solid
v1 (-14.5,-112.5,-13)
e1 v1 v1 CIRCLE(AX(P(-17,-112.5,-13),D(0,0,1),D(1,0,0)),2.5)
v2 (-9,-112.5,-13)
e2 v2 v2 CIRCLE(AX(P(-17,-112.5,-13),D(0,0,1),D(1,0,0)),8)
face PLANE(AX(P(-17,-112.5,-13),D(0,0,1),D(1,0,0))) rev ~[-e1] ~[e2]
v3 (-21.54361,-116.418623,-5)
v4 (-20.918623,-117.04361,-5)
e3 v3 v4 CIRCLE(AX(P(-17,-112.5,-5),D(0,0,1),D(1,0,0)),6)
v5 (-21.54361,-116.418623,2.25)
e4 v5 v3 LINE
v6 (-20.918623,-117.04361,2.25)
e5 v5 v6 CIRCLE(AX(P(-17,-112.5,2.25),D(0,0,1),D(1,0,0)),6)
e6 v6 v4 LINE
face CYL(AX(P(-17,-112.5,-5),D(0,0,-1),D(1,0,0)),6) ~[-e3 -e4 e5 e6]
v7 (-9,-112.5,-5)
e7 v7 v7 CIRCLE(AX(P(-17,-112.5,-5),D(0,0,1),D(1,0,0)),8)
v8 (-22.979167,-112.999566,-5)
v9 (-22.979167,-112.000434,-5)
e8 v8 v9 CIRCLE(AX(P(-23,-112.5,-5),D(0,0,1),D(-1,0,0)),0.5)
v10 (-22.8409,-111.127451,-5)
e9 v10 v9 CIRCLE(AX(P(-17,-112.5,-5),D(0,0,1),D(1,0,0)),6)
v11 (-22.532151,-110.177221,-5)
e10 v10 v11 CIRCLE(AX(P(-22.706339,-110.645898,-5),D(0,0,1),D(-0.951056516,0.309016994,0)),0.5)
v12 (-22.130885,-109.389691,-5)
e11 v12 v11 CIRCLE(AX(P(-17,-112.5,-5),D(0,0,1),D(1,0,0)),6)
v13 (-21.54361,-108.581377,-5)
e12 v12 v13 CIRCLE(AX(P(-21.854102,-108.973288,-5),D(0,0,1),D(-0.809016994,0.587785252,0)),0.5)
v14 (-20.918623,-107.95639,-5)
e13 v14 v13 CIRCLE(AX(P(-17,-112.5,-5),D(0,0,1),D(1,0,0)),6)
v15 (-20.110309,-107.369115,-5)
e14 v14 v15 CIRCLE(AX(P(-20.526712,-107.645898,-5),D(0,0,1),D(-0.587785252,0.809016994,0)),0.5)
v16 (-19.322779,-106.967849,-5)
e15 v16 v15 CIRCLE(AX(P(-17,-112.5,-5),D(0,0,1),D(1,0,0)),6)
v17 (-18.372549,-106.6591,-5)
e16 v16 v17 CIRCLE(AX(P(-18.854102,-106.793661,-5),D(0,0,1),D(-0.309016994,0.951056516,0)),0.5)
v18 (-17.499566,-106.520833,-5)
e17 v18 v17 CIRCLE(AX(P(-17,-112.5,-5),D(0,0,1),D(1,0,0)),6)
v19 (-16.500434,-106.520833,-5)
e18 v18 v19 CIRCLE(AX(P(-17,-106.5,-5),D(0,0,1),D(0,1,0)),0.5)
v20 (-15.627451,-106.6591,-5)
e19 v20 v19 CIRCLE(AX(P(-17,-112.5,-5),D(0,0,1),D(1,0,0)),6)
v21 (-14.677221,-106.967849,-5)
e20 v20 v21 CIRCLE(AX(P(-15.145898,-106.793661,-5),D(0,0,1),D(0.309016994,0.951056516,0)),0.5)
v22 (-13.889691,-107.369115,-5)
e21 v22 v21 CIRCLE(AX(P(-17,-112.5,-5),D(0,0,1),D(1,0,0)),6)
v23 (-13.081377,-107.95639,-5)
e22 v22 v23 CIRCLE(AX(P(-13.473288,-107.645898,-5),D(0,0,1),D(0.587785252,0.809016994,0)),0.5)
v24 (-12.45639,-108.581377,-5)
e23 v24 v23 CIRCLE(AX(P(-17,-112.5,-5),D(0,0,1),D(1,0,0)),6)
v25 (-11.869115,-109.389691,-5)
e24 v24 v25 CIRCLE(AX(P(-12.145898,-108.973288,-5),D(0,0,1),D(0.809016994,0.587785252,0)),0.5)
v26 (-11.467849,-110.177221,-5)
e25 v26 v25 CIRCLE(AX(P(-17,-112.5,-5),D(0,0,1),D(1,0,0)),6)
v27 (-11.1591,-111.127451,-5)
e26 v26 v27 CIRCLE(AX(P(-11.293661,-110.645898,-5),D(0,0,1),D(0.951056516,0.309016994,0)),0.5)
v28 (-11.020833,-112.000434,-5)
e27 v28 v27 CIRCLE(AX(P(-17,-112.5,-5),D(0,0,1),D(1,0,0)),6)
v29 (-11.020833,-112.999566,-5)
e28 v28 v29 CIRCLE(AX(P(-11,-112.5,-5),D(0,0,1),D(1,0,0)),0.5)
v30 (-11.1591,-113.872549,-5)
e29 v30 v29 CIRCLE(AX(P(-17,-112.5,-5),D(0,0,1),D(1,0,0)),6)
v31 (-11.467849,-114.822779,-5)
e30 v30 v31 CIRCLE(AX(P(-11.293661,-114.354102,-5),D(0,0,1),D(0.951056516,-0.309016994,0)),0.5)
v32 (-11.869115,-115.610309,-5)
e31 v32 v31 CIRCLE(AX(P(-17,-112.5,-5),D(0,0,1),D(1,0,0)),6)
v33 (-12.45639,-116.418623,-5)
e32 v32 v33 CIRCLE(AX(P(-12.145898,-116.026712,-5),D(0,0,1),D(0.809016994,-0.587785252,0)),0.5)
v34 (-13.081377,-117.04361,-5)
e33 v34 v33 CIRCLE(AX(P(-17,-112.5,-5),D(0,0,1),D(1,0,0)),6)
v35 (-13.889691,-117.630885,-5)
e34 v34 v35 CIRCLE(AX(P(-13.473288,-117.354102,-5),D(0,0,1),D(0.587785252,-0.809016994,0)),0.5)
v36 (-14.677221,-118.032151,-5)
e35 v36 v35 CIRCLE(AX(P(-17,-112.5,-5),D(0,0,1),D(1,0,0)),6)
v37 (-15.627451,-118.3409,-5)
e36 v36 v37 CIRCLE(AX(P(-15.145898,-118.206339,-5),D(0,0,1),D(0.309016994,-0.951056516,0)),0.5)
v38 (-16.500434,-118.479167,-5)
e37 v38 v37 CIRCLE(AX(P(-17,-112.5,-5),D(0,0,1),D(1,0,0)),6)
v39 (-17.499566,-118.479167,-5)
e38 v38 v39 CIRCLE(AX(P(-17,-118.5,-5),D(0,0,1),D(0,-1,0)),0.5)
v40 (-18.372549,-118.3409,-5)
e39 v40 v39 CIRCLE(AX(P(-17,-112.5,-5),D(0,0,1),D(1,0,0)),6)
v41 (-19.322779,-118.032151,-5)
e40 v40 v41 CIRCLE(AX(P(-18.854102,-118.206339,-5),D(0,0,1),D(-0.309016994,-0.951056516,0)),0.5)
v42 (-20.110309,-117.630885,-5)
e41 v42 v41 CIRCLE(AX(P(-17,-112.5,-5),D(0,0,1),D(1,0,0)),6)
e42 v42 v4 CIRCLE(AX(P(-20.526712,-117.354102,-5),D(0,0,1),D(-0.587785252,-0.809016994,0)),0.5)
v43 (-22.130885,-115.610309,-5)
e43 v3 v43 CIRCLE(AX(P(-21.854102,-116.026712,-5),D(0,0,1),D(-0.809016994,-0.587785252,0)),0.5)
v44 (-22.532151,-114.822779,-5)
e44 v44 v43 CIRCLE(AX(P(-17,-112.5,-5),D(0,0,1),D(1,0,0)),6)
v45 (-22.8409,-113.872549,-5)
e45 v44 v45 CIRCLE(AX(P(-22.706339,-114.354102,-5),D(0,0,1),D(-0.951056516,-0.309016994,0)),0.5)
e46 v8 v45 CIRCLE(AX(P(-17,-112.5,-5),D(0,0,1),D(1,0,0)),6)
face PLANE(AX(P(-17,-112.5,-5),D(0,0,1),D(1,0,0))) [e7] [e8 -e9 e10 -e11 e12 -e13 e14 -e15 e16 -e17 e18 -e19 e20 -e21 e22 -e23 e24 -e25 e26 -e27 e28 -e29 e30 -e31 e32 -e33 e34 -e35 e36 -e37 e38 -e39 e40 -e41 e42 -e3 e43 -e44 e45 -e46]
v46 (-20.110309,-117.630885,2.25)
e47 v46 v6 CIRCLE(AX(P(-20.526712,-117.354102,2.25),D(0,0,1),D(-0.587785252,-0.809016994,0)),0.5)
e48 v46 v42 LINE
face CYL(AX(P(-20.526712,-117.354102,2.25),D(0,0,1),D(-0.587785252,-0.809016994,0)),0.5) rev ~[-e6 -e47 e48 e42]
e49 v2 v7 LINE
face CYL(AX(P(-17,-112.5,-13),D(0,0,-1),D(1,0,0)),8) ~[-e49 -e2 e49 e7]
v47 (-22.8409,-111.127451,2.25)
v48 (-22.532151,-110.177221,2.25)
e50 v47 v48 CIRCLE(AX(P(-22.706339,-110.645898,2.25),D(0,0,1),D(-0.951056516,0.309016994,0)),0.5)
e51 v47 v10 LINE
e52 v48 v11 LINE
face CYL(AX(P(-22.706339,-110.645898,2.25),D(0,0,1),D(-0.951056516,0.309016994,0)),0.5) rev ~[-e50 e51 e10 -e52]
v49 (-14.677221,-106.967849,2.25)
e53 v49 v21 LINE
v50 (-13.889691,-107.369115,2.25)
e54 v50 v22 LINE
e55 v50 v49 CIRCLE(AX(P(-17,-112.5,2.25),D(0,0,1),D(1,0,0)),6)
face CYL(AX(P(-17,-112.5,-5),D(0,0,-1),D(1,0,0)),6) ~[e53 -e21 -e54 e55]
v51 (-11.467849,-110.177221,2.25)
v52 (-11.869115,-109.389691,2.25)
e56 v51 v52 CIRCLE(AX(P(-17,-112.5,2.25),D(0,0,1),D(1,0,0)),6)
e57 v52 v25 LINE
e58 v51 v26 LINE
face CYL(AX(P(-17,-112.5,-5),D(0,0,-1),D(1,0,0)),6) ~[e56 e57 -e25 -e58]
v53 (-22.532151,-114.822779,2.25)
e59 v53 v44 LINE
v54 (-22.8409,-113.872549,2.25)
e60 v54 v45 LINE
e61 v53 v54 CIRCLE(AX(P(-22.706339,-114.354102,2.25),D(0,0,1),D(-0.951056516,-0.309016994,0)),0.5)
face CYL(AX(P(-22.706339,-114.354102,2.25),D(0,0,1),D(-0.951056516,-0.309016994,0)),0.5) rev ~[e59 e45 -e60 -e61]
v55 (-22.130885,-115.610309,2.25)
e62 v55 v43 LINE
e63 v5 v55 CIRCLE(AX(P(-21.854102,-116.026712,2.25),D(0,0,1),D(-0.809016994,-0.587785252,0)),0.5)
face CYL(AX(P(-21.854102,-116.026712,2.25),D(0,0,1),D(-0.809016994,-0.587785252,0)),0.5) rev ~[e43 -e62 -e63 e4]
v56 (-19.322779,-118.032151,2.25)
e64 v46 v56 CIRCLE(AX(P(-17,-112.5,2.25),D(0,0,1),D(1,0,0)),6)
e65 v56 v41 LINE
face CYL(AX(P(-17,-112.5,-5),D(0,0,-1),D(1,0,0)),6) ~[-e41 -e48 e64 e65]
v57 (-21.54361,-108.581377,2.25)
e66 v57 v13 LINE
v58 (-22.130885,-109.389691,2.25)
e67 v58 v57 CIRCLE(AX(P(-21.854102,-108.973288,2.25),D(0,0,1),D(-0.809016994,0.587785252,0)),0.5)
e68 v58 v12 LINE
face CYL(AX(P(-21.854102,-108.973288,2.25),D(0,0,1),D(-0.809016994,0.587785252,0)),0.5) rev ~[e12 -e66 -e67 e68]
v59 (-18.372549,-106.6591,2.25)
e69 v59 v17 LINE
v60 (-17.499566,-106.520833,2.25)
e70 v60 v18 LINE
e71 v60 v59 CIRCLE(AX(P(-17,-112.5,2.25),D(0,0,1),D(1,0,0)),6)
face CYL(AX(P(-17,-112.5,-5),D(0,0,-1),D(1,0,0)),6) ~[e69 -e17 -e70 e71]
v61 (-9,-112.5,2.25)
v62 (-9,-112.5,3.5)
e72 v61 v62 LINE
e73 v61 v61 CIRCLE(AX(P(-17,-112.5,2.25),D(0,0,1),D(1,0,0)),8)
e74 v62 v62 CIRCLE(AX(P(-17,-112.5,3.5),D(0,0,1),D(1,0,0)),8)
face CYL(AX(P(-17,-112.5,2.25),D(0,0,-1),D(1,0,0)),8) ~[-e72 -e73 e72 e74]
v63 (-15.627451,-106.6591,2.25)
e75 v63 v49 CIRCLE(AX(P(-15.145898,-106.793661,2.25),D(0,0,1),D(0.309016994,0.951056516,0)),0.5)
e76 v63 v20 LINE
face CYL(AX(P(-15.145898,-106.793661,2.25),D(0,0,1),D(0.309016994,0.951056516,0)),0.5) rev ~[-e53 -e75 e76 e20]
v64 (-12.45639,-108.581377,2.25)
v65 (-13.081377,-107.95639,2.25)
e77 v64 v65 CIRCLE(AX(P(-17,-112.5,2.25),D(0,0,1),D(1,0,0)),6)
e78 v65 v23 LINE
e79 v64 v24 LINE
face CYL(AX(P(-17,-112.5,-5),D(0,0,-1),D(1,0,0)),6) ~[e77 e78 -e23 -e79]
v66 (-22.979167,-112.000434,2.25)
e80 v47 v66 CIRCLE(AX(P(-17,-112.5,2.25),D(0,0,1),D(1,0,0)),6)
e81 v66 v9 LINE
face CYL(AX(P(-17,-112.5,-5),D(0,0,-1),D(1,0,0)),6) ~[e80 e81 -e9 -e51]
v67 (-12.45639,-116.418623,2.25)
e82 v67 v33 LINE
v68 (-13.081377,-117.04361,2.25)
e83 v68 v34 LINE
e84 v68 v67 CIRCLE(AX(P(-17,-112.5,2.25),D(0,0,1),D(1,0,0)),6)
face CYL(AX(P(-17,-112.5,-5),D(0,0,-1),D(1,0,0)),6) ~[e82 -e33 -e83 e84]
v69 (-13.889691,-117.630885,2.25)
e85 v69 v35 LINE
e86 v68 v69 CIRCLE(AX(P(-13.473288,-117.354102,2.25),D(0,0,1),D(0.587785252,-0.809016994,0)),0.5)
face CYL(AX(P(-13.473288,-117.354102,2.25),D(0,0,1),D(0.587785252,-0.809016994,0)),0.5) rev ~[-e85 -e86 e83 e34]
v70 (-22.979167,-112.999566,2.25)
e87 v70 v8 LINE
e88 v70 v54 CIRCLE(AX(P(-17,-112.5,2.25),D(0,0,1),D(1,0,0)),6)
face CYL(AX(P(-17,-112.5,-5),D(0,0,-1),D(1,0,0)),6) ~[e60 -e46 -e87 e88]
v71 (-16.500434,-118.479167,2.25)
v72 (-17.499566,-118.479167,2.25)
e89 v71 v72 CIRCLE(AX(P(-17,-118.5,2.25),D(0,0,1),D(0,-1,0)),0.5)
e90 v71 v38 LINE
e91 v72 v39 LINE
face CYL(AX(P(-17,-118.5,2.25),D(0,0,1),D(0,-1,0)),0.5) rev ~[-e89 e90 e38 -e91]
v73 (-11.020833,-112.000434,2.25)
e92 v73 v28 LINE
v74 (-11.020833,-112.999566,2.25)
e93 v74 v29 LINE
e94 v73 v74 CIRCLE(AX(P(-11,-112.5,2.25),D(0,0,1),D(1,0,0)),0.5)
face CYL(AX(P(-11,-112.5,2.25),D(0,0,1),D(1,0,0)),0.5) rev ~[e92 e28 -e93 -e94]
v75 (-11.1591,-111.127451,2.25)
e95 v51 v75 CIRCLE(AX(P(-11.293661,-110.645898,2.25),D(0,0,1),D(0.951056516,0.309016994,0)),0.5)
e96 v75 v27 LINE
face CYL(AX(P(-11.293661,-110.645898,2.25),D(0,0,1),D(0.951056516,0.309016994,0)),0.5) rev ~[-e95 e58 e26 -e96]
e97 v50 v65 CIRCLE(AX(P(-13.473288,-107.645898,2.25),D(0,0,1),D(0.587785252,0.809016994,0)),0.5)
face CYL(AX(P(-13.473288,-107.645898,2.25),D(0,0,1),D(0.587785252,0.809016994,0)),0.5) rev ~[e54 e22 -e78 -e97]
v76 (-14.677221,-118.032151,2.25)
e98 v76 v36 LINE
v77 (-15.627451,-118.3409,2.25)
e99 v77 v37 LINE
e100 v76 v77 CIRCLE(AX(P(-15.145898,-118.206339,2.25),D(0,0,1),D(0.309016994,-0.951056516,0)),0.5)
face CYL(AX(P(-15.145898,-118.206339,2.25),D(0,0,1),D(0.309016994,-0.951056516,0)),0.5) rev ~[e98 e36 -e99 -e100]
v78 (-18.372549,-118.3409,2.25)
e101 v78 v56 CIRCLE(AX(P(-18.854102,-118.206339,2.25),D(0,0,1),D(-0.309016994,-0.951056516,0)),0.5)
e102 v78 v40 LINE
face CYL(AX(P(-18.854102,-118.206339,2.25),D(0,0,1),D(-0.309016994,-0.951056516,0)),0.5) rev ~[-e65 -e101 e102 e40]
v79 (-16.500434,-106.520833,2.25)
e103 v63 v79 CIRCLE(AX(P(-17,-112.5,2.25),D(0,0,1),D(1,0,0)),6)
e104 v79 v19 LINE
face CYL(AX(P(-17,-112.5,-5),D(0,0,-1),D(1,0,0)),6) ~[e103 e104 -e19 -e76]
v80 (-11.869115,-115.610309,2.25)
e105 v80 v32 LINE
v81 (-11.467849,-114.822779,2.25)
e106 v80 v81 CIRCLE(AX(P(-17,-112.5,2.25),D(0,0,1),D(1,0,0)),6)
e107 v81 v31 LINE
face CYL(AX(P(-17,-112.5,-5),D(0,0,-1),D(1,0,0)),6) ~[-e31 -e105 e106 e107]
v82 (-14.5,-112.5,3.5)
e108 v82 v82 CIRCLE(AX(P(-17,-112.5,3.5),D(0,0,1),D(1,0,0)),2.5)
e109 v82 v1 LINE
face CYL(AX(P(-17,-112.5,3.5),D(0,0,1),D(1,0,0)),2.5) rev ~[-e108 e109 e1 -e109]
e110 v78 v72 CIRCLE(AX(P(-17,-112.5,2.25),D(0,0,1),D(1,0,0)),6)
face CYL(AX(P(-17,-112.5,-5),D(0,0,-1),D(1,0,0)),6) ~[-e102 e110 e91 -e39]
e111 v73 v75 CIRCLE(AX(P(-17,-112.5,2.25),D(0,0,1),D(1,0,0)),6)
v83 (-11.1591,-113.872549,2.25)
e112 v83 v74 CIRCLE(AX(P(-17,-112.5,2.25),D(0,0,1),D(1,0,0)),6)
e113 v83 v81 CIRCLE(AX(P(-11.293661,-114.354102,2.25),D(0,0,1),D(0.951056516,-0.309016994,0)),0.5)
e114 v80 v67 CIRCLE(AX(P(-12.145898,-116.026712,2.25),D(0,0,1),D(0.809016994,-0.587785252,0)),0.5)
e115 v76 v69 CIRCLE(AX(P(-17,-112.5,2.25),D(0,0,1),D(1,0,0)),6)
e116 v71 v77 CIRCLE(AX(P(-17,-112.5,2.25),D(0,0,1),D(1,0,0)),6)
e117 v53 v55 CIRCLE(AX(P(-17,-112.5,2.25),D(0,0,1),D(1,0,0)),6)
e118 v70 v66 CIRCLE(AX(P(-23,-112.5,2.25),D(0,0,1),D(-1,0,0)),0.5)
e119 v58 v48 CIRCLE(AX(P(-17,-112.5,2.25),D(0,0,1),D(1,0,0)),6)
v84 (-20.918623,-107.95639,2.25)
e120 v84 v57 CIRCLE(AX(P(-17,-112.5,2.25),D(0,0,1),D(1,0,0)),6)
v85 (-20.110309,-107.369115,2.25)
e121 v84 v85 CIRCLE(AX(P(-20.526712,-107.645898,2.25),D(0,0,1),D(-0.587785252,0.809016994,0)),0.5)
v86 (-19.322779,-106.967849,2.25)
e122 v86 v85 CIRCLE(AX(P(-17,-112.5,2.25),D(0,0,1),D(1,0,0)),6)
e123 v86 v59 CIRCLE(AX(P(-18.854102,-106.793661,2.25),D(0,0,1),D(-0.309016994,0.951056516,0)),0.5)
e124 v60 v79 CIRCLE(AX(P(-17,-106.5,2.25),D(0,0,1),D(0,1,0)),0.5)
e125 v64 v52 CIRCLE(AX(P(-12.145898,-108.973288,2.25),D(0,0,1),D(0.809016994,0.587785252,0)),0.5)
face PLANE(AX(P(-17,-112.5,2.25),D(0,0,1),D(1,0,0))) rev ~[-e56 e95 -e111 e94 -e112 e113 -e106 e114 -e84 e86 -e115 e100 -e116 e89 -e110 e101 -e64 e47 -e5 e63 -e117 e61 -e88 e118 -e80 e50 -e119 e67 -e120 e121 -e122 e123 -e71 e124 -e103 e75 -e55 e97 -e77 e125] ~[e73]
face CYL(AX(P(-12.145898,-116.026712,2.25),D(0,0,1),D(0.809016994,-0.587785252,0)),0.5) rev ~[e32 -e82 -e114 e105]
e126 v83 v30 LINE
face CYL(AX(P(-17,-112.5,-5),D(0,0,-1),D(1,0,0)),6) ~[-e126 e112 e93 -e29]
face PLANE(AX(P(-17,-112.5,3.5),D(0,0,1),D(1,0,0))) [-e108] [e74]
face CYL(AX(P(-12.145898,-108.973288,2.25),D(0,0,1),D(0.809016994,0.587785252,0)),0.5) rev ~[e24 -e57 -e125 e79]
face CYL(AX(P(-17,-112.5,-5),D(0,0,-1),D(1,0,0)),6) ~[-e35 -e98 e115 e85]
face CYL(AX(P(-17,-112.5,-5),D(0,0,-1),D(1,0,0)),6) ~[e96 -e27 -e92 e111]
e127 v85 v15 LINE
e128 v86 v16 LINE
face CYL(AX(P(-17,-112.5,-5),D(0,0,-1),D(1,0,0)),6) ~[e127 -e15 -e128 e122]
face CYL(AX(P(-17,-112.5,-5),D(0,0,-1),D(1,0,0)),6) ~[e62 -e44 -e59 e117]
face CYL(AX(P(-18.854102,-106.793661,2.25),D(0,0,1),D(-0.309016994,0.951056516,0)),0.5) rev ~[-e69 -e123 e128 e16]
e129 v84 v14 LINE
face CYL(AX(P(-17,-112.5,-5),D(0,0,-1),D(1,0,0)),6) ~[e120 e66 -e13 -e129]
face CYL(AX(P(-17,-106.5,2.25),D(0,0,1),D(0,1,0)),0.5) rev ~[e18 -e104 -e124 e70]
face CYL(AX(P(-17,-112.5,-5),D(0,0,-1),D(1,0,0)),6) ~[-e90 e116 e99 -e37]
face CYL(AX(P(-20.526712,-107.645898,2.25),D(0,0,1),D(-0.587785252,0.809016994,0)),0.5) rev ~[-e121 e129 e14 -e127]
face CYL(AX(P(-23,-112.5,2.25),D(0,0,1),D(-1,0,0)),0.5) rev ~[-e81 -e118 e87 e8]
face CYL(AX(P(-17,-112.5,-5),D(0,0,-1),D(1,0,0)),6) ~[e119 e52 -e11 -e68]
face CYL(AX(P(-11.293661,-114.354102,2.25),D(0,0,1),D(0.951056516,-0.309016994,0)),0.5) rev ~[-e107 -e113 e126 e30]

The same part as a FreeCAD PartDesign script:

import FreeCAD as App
import Part
import Sketcher
Q = App.Units.Quantity

doc = App.newDocument("Part")
body = doc.addObject("PartDesign::Body", "Body")

sketch1 = doc.addObject("Sketcher::SketchObject", "Sketch")
body.addObject(sketch1)
sketch1.AttachmentSupport = (doc.XY_Plane, [""])
sketch1.MapMode = "FlatFace"
sketch1.addGeometry(Part.Circle(App.Vector(20, -80, 0), App.Vector(0, 0, 1), 8), False)
sketch1.addConstraint([
    Sketcher.Constraint("Diameter", 0, Q("16 mm")),
    Sketcher.Constraint("DistanceX", -1, 1, 0, 3, Q("20 mm")),
    Sketcher.Constraint("DistanceY", 0, 3, -1, 1, Q("80 mm")),
])
pad1 = doc.addObject("PartDesign::Pad", "Pad")
body.addObject(pad1)
pad1.Profile = sketch1
pad1.Length = 8
pad1.Reversed = True

sketch2 = doc.addObject("Sketcher::SketchObject", "Sketch001")
body.addObject(sketch2)
sketch2.AttachmentSupport = (doc.XY_Plane, [""])
sketch2.MapMode = "FlatFace"
sketch2.AttachmentOffset = App.Placement(App.Vector(0, 0, -8), App.Rotation())
sketch2.addGeometry(Part.Circle(App.Vector(20, -80, 0), App.Vector(0, 0, 1), 6), False)
sketch2.addConstraint([
    Sketcher.Constraint("Diameter", 0, Q("12 mm")),
    Sketcher.Constraint("DistanceX", -1, 1, 0, 3, Q("20 mm")),
    Sketcher.Constraint("DistanceY", 0, 3, -1, 1, Q("80 mm")),
])
pad2 = doc.addObject("PartDesign::Pad", "Pad001")
body.addObject(pad2)
pad2.Profile = sketch2
pad2.Length = 7.25
pad2.Reversed = True

sketch3 = doc.addObject("Sketcher::SketchObject", "Sketch002")
body.addObject(sketch3)
sketch3.AttachmentSupport = (doc.XY_Plane, [""])
sketch3.MapMode = "FlatFace"
sketch3.AttachmentOffset = App.Placement(App.Vector(0, 0, -15.25), App.Rotation())
sketch3.addGeometry(Part.Circle(App.Vector(26, -80, 0), App.Vector(0, 0, 1), 0.5), False)
sketch3.addConstraint([
    Sketcher.Constraint("Diameter", 0, Q("1 mm")),
    Sketcher.Constraint("DistanceX", -1, 1, 0, 3, Q("26 mm")),
    Sketcher.Constraint("DistanceY", 0, 3, -1, 1, Q("80 mm")),
])
pocket1 = doc.addObject("PartDesign::Pocket", "Pocket")
body.addObject(pocket1)
pocket1.Profile = sketch3
pocket1.Length = 7.25
pocket1.Reversed = True
doc.recompute()

datumline = doc.addObject("PartDesign::Line", "DatumLine")
body.addObject(datumline)
datumline.Placement = App.Placement(App.Vector(20, -80, 0), App.Rotation(App.Vector(0, 0, 1), App.Vector(0, 0, -1)))
polarpattern = doc.addObject("PartDesign::PolarPattern", "PolarPattern")
body.addObject(polarpattern)
polarpattern.Originals = [pocket1]
polarpattern.Axis = (datumline, [""])
polarpattern.Angle = 360
polarpattern.Occurrences = 20
body.Tip = polarpattern

sketch4 = doc.addObject("Sketcher::SketchObject", "Sketch003")
body.addObject(sketch4)
sketch4.AttachmentSupport = (doc.XY_Plane, [""])
sketch4.MapMode = "FlatFace"
sketch4.AttachmentOffset = App.Placement(App.Vector(0, 0, -15.25), App.Rotation())
sketch4.addGeometry(Part.Circle(App.Vector(20, -80, 0), App.Vector(0, 0, 1), 8), False)
sketch4.addConstraint([
    Sketcher.Constraint("Diameter", 0, Q("16 mm")),
    Sketcher.Constraint("DistanceX", -1, 1, 0, 3, Q("20 mm")),
    Sketcher.Constraint("DistanceY", 0, 3, -1, 1, Q("80 mm")),
])
pad3 = doc.addObject("PartDesign::Pad", "Pad002")
body.addObject(pad3)
pad3.Profile = sketch4
pad3.Length = 1.25
pad3.Reversed = True

sketch5 = doc.addObject("Sketcher::SketchObject", "Sketch004")
body.addObject(sketch5)
sketch5.AttachmentSupport = (doc.XY_Plane, [""])
sketch5.MapMode = "FlatFace"
sketch5.AttachmentOffset = App.Placement(App.Vector(0, 0, -16.5), App.Rotation())
sketch5.addGeometry(Part.Circle(App.Vector(20, -80, 0), App.Vector(0, 0, 1), 2.5), False)
sketch5.addConstraint([
    Sketcher.Constraint("Diameter", 0, Q("5 mm")),
    Sketcher.Constraint("DistanceX", -1, 1, 0, 3, Q("20 mm")),
    Sketcher.Constraint("DistanceY", 0, 3, -1, 1, Q("80 mm")),
])
pocket2 = doc.addObject("PartDesign::Pocket", "Pocket001")
body.addObject(pocket2)
pocket2.Profile = sketch5
pocket2.Length = 16.5
pocket2.Reversed = True
body2 = doc.addObject("PartDesign::Body", "Body001")
doc.recompute()

body.Placement = App.Placement(App.Vector(-6, -192, -13), App.Rotation(App.Vector(-1, 0, 0), 180))
boolean = doc.addObject("PartDesign::Boolean", "Boolean")
body2.addObject(boolean)
boolean.Type = "Fuse"
boolean.addObjects([body])
body3 = doc.addObject("PartDesign::Body", "Body002")
doc.recompute()

body2.Placement = App.Placement(App.Vector(-31, -0.5, 0), App.Rotation(App.Vector(0, 0, 1), 0))
boolean2 = doc.addObject("PartDesign::Boolean", "Boolean001")
body3.addObject(boolean2)
boolean2.Type = "Fuse"
boolean2.addObjects([body2])

doc.recompute()
